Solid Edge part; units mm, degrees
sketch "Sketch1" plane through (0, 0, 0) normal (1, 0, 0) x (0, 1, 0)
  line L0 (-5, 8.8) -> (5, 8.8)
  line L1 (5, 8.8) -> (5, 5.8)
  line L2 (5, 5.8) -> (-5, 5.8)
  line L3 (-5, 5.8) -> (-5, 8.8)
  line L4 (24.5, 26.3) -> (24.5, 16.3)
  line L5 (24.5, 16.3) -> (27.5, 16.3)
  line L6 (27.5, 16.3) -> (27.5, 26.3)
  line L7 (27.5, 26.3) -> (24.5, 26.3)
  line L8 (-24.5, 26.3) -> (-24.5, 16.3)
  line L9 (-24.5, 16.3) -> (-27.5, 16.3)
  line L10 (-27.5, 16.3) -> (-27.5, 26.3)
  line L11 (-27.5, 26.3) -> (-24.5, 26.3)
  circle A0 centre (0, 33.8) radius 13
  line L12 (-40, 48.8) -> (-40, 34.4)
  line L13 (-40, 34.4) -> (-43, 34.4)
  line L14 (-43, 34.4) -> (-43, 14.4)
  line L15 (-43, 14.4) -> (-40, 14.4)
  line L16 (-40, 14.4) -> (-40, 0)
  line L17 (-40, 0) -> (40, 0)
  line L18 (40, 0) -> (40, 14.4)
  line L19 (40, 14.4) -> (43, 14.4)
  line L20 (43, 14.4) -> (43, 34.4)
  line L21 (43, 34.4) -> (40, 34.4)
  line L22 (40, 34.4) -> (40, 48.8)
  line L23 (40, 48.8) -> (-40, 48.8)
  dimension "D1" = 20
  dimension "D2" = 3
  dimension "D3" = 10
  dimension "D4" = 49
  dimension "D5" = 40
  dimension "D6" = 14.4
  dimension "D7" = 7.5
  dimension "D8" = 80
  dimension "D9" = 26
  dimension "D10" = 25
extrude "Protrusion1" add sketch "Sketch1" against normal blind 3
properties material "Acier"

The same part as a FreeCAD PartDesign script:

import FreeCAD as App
import Part
import Sketcher
from FreeCAD import Vector
Q = App.Units.Quantity


def add_polygon(sketch, points):
    """Adds a closed chain of lines whose ends are joined by coincident constraints."""
    first, n = sketch.GeometryCount, len(points)
    for a, b in zip(points, points[1:] + points[:1]):
        sketch.addGeometry(Part.LineSegment(App.Vector(*a, 0), App.Vector(*b, 0)), False)
    for i in range(n):
        sketch.addConstraint(Sketcher.Constraint("Coincident", first + i, 2, first + (i + 1) % n, 1))

doc = App.newDocument("Part")
body = doc.addObject("PartDesign::Body", "Body")

# Sketch on YZ plane
sketch1 = doc.addObject("Sketcher::SketchObject", "Sketch")
body.addObject(sketch1)
sketch1.AttachmentSupport = (doc.YZ_Plane, [""])
sketch1.MapMode = "FlatFace"
add_polygon(sketch1, [(40, 48.8), (-40, 48.8), (-40, 34.4), (-43, 34.4), (-43, 14.4), (-40, 14.4), (-40, 0), (40, 0), (40, 14.4), (43, 14.4), (43, 34.4), (40, 34.4)])  # lines 0-11
add_polygon(sketch1, [(-27.5, 26.3), (-24.5, 26.3), (-24.5, 16.3), (-27.5, 16.3)])  # lines 12-15
add_polygon(sketch1, [(-5, 5.8), (-5, 8.8), (5, 8.8), (5, 5.8)])  # lines 16-19
add_polygon(sketch1, [(24.5, 16.3), (24.5, 26.3), (27.5, 26.3), (27.5, 16.3)])  # lines 20-23
sketch1.addGeometry(Part.Circle(Vector(0, 33.8, 0), Vector(0, 0, 1), 13), False)  # 24
sketch1.addConstraint([
    Sketcher.Constraint("Horizontal", 0),
    Sketcher.Constraint("Vertical", 1),
    Sketcher.Constraint("Horizontal", 2),
    Sketcher.Constraint("Vertical", 3),
    Sketcher.Constraint("Horizontal", 4),
    Sketcher.Constraint("Vertical", 5),
    Sketcher.Constraint("Horizontal", 6),
    Sketcher.Constraint("Vertical", 7),
    Sketcher.Constraint("Horizontal", 8),
    Sketcher.Constraint("Vertical", 9),
    Sketcher.Constraint("Horizontal", 10),
    Sketcher.Constraint("Vertical", 11),
    Sketcher.Constraint("Horizontal", 12),
    Sketcher.Constraint("Vertical", 13),
    Sketcher.Constraint("Horizontal", 14),
    Sketcher.Constraint("Vertical", 15),
    Sketcher.Constraint("Vertical", 16),
    Sketcher.Constraint("Horizontal", 17),
    Sketcher.Constraint("Vertical", 18),
    Sketcher.Constraint("Horizontal", 19),
    Sketcher.Constraint("Vertical", 20),
    Sketcher.Constraint("Horizontal", 21),
    Sketcher.Constraint("Vertical", 22),
    Sketcher.Constraint("Horizontal", 23),
    Sketcher.Constraint("Symmetric", 5, 2, 6, 2, -1, 1),
    Sketcher.Constraint("Symmetric", 3, 2, 8, 2, -2),
    Sketcher.Constraint("Symmetric", 1, 2, 10, 2, -2),
    Sketcher.Constraint("Symmetric", 12, 2, 20, 2, -2),
    Sketcher.Constraint("Symmetric", 14, 2, 22, 2, -2),
    Sketcher.Constraint("PointOnObject", 24, 3, -2),
    Sketcher.Constraint("Vertical", 1, 2, 4, 2),
    Sketcher.Constraint("Equal", 10, 12),
    Sketcher.Constraint("Equal", 1, 5),
    Sketcher.Constraint("Equal", 19, 13),
    Sketcher.Constraint("Equal", 23, 16),
    Sketcher.Constraint("Diameter", 24, Q("26 mm")),
    Sketcher.Constraint("DistanceX", 0, 2, -1, 1, Q("40 mm")),
    Sketcher.Constraint("DistanceX", 2, 2, -1, 1, Q("43 mm")),
    Sketcher.Constraint("DistanceX", 16, 2, -1, 1, Q("5 mm")),
    Sketcher.Constraint("DistanceX", -1, 1, 17, 2, Q("5 mm")),
    Sketcher.Constraint("DistanceY", 3, 2, 3, 1, Q("20 mm")),
    Sketcher.Constraint("DistanceY", 1, 2, 1, 1, Q("14.4 mm")),
    Sketcher.Constraint("DistanceY", 24, 3, 0, 2, Q("15 mm")),
    Sketcher.Constraint("DistanceY", 16, 2, 24, 3, Q("25 mm")),
    Sketcher.Constraint("DistanceX", 12, 2, -1, 1, Q("24.5 mm")),
    Sketcher.Constraint("DistanceY", -1, 1, 12, 2, Q("26.3 mm")),
])
pad1 = doc.addObject("PartDesign::Pad", "Pad")
body.addObject(pad1)
pad1.Profile = sketch1
pad1.Length = 3
pad1.Reversed = True

doc.recompute()
